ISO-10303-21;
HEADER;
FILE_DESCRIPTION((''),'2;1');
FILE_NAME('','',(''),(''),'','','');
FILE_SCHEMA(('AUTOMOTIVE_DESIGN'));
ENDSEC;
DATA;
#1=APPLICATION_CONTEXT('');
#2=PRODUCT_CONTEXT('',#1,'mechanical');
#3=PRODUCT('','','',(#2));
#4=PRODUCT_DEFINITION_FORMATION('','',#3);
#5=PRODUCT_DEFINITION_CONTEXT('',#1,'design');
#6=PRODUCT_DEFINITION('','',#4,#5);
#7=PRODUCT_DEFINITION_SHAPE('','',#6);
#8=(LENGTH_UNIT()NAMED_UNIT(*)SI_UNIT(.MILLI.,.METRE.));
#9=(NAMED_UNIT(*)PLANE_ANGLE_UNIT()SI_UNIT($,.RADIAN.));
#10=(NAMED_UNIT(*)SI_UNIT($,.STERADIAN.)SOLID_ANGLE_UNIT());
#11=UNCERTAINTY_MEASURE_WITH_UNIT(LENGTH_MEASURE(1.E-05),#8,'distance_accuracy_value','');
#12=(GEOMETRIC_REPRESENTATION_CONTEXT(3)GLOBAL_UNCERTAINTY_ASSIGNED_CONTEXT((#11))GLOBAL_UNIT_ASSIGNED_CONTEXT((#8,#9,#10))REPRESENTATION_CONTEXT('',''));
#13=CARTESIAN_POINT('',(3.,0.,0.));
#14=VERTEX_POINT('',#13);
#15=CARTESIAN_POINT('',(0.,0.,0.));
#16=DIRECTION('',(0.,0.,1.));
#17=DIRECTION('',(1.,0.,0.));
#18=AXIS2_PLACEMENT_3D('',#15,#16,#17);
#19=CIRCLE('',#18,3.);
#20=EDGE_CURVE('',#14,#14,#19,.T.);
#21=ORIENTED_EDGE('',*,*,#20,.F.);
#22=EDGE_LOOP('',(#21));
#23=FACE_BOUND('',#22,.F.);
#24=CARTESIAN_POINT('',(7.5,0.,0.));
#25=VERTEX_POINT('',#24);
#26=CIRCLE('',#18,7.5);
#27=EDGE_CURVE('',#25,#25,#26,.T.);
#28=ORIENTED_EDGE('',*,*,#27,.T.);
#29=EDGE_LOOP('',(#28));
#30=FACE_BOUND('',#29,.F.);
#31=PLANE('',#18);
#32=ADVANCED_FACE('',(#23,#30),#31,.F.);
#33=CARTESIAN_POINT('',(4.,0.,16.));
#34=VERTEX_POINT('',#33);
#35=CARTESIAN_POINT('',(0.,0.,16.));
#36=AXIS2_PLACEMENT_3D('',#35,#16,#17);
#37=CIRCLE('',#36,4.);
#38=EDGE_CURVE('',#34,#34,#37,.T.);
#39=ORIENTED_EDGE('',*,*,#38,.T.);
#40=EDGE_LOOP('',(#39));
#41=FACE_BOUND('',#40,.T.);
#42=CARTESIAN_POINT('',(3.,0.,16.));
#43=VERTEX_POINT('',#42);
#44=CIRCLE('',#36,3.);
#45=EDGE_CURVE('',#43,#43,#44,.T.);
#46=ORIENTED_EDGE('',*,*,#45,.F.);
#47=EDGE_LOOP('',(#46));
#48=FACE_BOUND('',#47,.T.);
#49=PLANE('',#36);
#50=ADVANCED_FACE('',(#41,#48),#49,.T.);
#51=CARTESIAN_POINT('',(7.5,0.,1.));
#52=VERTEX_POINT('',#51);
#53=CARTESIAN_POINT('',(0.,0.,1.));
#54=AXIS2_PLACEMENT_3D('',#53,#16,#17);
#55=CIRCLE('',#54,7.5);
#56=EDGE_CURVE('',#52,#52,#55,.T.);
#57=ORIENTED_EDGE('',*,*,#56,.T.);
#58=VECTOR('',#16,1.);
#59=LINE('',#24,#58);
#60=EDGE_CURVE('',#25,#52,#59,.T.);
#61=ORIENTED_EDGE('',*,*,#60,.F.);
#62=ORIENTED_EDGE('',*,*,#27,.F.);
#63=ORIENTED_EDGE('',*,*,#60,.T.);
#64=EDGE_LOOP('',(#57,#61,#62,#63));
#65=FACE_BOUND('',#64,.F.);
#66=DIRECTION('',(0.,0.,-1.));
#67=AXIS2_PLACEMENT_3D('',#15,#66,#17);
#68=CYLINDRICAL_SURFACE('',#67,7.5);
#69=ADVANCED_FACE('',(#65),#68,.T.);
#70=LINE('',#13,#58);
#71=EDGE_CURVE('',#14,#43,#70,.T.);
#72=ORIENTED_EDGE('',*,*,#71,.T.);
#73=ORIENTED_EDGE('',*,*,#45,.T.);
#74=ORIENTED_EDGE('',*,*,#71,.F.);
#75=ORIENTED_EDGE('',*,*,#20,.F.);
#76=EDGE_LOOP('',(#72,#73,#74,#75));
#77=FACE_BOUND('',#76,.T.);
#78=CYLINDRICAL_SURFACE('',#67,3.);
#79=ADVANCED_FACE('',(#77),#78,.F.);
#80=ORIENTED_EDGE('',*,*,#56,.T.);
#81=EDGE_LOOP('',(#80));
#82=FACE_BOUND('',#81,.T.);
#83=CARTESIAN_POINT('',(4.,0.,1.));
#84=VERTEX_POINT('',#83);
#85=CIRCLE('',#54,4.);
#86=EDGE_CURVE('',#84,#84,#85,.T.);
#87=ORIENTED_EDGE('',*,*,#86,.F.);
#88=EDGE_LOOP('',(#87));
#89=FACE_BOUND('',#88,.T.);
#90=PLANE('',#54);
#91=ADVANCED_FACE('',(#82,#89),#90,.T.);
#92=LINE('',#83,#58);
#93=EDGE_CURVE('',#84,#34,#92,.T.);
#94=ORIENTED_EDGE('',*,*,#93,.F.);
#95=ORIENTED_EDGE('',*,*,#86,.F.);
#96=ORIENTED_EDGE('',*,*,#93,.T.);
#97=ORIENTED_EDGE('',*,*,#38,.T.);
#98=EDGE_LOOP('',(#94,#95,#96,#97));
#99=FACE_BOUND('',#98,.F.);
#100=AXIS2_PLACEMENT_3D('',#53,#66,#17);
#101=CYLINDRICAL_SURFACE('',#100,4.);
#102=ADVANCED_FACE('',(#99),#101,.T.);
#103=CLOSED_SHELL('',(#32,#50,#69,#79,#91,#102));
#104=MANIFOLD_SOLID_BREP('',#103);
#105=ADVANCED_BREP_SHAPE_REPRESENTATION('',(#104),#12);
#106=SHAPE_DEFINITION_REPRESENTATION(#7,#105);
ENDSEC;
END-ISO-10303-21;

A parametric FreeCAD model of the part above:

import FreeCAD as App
import Part
import Sketcher

doc = App.newDocument("Part")
body = doc.addObject("PartDesign::Body", "Body")

sketch1 = doc.addObject("Sketcher::SketchObject", "Sketch")
body.addObject(sketch1)
sketch1.AttachmentSupport = (doc.XY_Plane, [""])
sketch1.MapMode = "FlatFace"
sketch1.addGeometry(Part.Circle(App.Vector(0, 0, 0), App.Vector(0, 0, 1), 7.5), False)
sketch1.addGeometry(Part.Circle(App.Vector(0, 0, 0), App.Vector(0, 0, 1), 3), False)
sketch1.addConstraint(Sketcher.Constraint("Coincident", 0, 3, -1, 1))
sketch1.addConstraint(Sketcher.Constraint("Coincident", 1, 3, -1, 1))
sketch1.addConstraint(Sketcher.Constraint("Diameter", 0, 15.0))
sketch1.addConstraint(Sketcher.Constraint("Diameter", 1, 6.0))
pad1 = doc.addObject("PartDesign::Pad", "Pad")
body.addObject(pad1)
pad1.Profile = sketch1
pad1.Length = 1

sketch2 = doc.addObject("Sketcher::SketchObject", "Sketch001")
body.addObject(sketch2)
sketch2.AttachmentSupport = (doc.XY_Plane, [""])
sketch2.MapMode = "FlatFace"
sketch2.AttachmentOffset = App.Placement(App.Vector(0, 0, 1), App.Rotation())
sketch2.addGeometry(Part.Circle(App.Vector(0, 0, 0), App.Vector(0, 0, 1), 4), False)
sketch2.addGeometry(Part.Circle(App.Vector(0, 0, 0), App.Vector(0, 0, 1), 3), False)
sketch2.addConstraint(Sketcher.Constraint("Coincident", 0, 3, -1, 1))
sketch2.addConstraint(Sketcher.Constraint("Coincident", 1, 3, -1, 1))
sketch2.addConstraint(Sketcher.Constraint("Diameter", 0, 8.0))
sketch2.addConstraint(Sketcher.Constraint("Diameter", 1, 6.0))
pad2 = doc.addObject("PartDesign::Pad", "Pad001")
body.addObject(pad2)
pad2.Profile = sketch2
pad2.Length = 15

doc.recompute()
